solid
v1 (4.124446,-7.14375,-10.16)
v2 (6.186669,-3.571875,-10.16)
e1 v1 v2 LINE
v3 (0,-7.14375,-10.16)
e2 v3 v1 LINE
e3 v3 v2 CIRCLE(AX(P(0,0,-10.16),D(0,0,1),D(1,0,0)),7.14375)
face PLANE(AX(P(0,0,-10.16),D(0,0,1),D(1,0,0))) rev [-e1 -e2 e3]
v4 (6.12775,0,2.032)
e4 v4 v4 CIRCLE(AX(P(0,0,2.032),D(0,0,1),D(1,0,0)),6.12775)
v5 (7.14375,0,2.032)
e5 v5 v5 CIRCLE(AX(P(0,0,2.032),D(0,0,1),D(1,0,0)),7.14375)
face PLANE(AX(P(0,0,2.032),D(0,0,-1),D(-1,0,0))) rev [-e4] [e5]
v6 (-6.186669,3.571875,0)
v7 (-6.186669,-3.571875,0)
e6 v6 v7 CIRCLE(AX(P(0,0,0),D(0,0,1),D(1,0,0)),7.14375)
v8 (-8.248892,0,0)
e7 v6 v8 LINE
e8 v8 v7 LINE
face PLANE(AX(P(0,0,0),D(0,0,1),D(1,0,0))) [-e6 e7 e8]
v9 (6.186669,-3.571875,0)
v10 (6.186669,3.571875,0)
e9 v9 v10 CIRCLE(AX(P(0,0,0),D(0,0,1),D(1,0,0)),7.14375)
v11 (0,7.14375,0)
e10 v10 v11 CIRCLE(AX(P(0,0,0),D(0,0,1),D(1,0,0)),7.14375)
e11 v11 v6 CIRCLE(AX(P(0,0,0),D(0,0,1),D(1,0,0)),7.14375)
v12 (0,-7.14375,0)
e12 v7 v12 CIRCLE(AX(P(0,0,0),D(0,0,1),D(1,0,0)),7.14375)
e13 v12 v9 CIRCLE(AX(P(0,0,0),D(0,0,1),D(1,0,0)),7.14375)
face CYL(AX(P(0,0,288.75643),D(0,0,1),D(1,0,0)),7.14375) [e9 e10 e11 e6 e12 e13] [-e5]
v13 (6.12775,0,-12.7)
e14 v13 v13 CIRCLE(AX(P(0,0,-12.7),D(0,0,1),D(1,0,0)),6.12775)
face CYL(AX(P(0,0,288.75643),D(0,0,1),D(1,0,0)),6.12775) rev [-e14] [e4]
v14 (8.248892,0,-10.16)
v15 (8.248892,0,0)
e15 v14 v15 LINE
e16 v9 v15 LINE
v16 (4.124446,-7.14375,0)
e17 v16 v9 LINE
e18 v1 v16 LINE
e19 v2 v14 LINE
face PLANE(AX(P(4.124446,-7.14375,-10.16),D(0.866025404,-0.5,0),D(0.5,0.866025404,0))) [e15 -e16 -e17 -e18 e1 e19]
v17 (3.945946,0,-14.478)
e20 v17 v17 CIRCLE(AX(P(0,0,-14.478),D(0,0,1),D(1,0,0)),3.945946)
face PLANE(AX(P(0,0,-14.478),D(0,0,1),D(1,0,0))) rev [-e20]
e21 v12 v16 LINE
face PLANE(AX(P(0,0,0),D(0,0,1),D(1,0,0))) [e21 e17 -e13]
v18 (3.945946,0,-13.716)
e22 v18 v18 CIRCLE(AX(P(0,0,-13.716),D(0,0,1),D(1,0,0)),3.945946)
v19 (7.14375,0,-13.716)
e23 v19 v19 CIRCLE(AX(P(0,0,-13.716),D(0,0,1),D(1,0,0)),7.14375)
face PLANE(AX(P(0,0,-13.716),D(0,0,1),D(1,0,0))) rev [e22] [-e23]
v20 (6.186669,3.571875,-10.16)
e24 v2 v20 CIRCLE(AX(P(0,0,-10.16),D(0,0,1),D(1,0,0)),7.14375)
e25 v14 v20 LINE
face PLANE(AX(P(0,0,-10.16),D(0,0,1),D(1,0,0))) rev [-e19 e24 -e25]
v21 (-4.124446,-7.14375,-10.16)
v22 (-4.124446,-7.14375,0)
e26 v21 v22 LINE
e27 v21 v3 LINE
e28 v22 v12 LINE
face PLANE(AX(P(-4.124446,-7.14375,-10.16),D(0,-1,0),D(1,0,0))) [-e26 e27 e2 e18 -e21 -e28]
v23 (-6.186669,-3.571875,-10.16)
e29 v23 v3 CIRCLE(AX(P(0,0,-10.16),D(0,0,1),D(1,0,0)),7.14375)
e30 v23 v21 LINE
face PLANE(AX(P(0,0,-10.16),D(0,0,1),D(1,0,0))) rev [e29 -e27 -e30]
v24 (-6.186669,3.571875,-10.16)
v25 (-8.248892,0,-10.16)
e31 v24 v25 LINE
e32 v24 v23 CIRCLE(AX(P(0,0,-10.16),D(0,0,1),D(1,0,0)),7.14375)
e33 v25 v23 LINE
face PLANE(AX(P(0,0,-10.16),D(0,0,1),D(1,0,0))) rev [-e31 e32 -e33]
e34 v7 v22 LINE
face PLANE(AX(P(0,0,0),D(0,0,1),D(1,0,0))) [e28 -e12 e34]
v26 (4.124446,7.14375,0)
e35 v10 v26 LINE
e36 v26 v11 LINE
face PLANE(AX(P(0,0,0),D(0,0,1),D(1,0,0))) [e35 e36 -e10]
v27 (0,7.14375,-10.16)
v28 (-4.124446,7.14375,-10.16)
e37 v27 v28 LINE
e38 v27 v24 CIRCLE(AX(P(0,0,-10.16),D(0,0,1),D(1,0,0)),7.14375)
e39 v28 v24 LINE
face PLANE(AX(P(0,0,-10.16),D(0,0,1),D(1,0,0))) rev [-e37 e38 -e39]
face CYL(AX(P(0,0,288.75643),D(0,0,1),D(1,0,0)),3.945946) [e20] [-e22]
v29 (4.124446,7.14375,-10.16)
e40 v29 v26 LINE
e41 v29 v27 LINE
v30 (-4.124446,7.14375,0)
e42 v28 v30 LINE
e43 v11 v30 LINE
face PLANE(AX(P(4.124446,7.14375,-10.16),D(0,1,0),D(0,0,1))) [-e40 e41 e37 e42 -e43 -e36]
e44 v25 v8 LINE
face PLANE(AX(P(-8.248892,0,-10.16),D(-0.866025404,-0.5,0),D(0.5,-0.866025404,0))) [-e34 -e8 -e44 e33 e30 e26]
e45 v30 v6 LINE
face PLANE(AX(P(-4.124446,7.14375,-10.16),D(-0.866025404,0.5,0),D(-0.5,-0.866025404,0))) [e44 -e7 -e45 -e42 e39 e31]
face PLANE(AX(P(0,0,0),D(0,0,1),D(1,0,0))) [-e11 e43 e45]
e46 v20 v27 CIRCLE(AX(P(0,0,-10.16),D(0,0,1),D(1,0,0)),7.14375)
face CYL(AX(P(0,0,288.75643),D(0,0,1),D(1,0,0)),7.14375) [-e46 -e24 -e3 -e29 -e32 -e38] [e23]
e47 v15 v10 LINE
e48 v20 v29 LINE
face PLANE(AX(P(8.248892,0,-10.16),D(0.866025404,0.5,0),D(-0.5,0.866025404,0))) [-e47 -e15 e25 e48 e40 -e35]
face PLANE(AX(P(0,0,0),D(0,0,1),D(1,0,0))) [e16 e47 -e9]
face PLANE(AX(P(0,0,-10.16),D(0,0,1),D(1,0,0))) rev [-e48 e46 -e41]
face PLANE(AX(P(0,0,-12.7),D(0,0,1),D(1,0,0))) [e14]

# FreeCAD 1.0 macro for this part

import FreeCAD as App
import Part
import Sketcher
Q = App.Units.Quantity

doc = App.newDocument("Part")
params = doc.addObject("Spreadsheet::Sheet", "Params")
for row, (alias, value) in enumerate([
    ("sketch1_width", "0.04 in"),
    ("sketch1_height", "0.58 in"),
    ("sketch1_height2", "0.62 in"),
    ("sketch1_height3", "0.03 in"),
    ("revolution_angle", "360 deg"),
    ("pad1_length", "0.4 in"),
], start=1):
    params.set(f"A{row}", alias)
    params.set(f"B{row}", "=" + value)
    params.setAlias(f"B{row}", alias)

body = doc.addObject("PartDesign::Body", "Body")

sketch1 = doc.addObject("Sketcher::SketchObject", "Sketch")
body.addObject(sketch1)
sketch1.AttachmentSupport = (doc.XZ_Plane, [""])
sketch1.MapMode = "FlatFace"
sketch1.addGeometry([
    Part.LineSegment(App.Vector(6.1, -12.7, 0), App.Vector(6.1, 2, 0)),
    Part.LineSegment(App.Vector(6.1, 2, 0), App.Vector(7.1, 2, 0)),
    Part.LineSegment(App.Vector(7.1, 2, 0), App.Vector(7.1, -13.7, 0)),
    Part.LineSegment(App.Vector(7.1, -13.7, 0), App.Vector(3.9, -13.7, 0)),
    Part.LineSegment(App.Vector(3.9, -13.7, 0), App.Vector(3.9, -14.5, 0)),
    Part.LineSegment(App.Vector(3.9, -14.5, 0), App.Vector(0, -14.5, 0)),
    Part.LineSegment(App.Vector(0, -14.5, 0), App.Vector(0, -12.7, 0)),
    Part.LineSegment(App.Vector(0, -12.7, 0), App.Vector(6.1, -12.7, 0)),
], False)
sketch1.addConstraint([
    Sketcher.Constraint("Coincident", 0, 2, 1, 1),
    Sketcher.Constraint("Coincident", 1, 2, 2, 1),
    Sketcher.Constraint("Coincident", 2, 2, 3, 1),
    Sketcher.Constraint("Coincident", 3, 2, 4, 1),
    Sketcher.Constraint("Coincident", 4, 2, 5, 1),
    Sketcher.Constraint("Coincident", 5, 2, 6, 1),
    Sketcher.Constraint("Coincident", 6, 2, 7, 1),
    Sketcher.Constraint("Coincident", 7, 2, 0, 1),
    Sketcher.Constraint("Vertical", 0),
    Sketcher.Constraint("Horizontal", 1),
    Sketcher.Constraint("Vertical", 2),
    Sketcher.Constraint("Horizontal", 3),
    Sketcher.Constraint("Vertical", 4),
    Sketcher.Constraint("Horizontal", 5),
    Sketcher.Constraint("Vertical", 6),
    Sketcher.Constraint("Horizontal", 7),
    Sketcher.Constraint("PointOnObject", 5, 2, -2),
    Sketcher.Constraint("DistanceX", 1, 1, 1, 2, Q("0.04 in")),
    Sketcher.Constraint("DistanceY", 0, 1, 0, 2, Q("0.58 in")),
    Sketcher.Constraint("DistanceY", 2, 2, 2, 1, Q("0.62 in")),
    Sketcher.Constraint("DistanceY", 4, 2, 4, 1, Q("0.03 in")),
    Sketcher.Constraint("DistanceY", 6, 2, -1, 1, Q("0.5 in")),
    Sketcher.Constraint("DistanceX", -1, 1, 1, 2, Q("0.28125 in")),
    Sketcher.Constraint("DistanceX", 3, 2, 3, 1, 3.197804),
])
sketch1.setExpression("Constraints[17]", "Params.sketch1_width")
sketch1.setExpression("Constraints[18]", "Params.sketch1_height")
sketch1.setExpression("Constraints[19]", "Params.sketch1_height2")
sketch1.setExpression("Constraints[20]", "Params.sketch1_height3")
revolution = doc.addObject("PartDesign::Revolution", "Revolution")
body.addObject(revolution)
revolution.Profile = sketch1
revolution.ReferenceAxis = (sketch1, ["V_Axis"])
revolution.setExpression("Angle", "Params.revolution_angle")

sketch2 = doc.addObject("Sketcher::SketchObject", "Sketch001")
body.addObject(sketch2)
sketch2.AttachmentSupport = (doc.XY_Plane, [""])
sketch2.MapMode = "FlatFace"
sketch2.addGeometry([
    Part.LineSegment(App.Vector(8, 0, 0), App.Vector(4, 7, 0)),
    Part.LineSegment(App.Vector(4, 7, 0), App.Vector(-4, 7, 0)),
    Part.LineSegment(App.Vector(-4, 7, 0), App.Vector(-8, 0, 0)),
    Part.LineSegment(App.Vector(-8, 0, 0), App.Vector(-4, -7, 0)),
    Part.LineSegment(App.Vector(-4, -7, 0), App.Vector(4, -7, 0)),
    Part.LineSegment(App.Vector(4, -7, 0), App.Vector(8, 0, 0)),
    Part.Circle(App.Vector(0, 0, 0), App.Vector(0, 0, 1), 6),
], False)
sketch2.addConstraint([
    Sketcher.Constraint("Coincident", 0, 2, 1, 1),
    Sketcher.Constraint("Coincident", 1, 2, 2, 1),
    Sketcher.Constraint("Coincident", 2, 2, 3, 1),
    Sketcher.Constraint("Coincident", 3, 2, 4, 1),
    Sketcher.Constraint("Coincident", 4, 2, 5, 1),
    Sketcher.Constraint("Coincident", 5, 2, 0, 1),
    Sketcher.Constraint("Horizontal", 1),
    Sketcher.Constraint("Horizontal", 4),
    Sketcher.Constraint("Coincident", 6, 3, -1, 1),
    Sketcher.Constraint("Symmetric", 0, 2, 3, 2, -1, 1),
    Sketcher.Constraint("Symmetric", 2, 2, 5, 2, -1, 1),
    Sketcher.Constraint("PointOnObject", 2, 2, -1),
    Sketcher.Constraint("Parallel", 2, 5),
    Sketcher.Constraint("Vertical", 1, 2, 3, 2),
    Sketcher.Constraint("Angle", 0, Q("120 deg")),
    Sketcher.Constraint("Diameter", 6, Q("0.4825 in")),
    Sketcher.Constraint("DistanceY", -1, 1, 0, 2, Q("0.28125 in")),
    Sketcher.Constraint("DistanceX", 1, 2, 1, 1, 8.248892),
])
pad1 = doc.addObject("PartDesign::Pad", "Pad")
body.addObject(pad1)
pad1.Profile = sketch2
pad1.setExpression("Length", "Params.pad1_length")
pad1.Reversed = True

doc.recompute()
